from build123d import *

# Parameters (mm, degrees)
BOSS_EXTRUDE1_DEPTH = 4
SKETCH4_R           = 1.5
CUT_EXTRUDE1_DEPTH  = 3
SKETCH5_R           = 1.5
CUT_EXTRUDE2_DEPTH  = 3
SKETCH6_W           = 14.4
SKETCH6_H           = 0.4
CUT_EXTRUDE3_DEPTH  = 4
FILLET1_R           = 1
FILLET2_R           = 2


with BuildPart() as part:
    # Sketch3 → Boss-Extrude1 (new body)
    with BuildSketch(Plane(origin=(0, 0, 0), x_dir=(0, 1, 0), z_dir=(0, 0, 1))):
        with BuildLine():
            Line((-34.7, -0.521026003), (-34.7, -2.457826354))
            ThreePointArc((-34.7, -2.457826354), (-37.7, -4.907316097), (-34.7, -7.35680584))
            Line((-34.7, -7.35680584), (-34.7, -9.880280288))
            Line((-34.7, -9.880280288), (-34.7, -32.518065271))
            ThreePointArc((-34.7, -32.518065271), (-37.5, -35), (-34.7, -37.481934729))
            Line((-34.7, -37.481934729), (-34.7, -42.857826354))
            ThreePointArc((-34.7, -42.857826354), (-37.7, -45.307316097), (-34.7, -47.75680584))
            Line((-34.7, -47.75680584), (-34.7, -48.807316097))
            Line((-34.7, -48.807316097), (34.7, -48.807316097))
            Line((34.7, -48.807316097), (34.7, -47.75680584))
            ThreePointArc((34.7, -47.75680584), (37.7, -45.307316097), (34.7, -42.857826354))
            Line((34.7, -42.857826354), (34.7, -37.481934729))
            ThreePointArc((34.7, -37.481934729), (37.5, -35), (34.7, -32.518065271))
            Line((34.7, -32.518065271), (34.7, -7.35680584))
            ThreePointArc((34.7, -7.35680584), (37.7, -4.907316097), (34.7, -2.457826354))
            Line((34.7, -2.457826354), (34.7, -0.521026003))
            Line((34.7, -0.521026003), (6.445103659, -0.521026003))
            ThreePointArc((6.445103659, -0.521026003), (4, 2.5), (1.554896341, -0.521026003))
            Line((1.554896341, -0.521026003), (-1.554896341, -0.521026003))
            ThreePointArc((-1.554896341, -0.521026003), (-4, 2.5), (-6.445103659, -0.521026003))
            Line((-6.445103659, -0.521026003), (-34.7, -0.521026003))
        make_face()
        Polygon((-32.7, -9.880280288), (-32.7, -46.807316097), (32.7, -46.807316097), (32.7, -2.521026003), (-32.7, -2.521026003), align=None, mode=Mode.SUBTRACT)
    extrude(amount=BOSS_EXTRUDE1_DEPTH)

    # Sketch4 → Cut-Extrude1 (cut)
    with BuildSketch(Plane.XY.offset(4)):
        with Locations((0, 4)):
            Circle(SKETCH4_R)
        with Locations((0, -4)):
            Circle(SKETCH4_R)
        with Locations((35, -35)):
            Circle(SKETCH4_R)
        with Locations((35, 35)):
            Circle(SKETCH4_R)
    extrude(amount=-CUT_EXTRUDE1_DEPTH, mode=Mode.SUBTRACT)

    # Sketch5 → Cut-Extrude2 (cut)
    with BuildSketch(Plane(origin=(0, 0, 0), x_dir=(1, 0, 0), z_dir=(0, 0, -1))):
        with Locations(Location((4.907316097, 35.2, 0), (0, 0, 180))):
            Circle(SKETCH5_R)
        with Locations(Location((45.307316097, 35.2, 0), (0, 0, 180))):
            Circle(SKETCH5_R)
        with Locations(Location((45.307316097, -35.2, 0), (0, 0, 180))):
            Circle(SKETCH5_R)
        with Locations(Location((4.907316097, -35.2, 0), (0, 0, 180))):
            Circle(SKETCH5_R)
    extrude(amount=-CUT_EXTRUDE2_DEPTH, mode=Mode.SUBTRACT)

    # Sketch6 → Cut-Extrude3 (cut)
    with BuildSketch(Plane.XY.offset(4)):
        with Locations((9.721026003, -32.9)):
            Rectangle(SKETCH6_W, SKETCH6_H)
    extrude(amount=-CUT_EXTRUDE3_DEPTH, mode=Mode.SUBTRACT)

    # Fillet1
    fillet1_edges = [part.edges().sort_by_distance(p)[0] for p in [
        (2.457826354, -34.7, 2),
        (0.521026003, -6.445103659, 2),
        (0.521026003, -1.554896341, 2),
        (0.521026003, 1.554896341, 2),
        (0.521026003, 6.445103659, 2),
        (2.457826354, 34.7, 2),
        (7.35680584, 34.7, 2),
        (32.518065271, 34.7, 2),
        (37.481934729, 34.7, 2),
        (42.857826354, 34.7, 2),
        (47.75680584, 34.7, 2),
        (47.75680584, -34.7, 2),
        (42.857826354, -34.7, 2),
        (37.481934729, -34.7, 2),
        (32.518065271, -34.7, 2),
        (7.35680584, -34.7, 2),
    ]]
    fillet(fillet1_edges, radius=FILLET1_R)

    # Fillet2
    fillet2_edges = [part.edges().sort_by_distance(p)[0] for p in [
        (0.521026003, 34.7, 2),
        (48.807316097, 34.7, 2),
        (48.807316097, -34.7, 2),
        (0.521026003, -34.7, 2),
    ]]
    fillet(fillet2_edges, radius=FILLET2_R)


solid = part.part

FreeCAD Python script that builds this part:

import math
import FreeCAD as App
import Part
import Sketcher
Q = App.Units.Quantity


def edges_at(feature, points):
    """Names of the edges that pass closest to the given points."""
    edges = feature.Shape.Edges
    near = lambda p: min(range(len(edges)), key=lambda i: edges[i].distToShape(Part.Vertex(*p))[0])
    return sorted({f"Edge{near(p) + 1}" for p in points})


def add_polygon(sketch, points):
    """Adds a closed chain of lines whose ends are joined by coincident constraints."""
    first, n = sketch.GeometryCount, len(points)
    for a, b in zip(points, points[1:] + points[:1]):
        sketch.addGeometry(Part.LineSegment(App.Vector(*a, 0), App.Vector(*b, 0)), False)
    for i in range(n):
        sketch.addConstraint(Sketcher.Constraint("Coincident", first + i, 2, first + (i + 1) % n, 1))

doc = App.newDocument("Part")
body = doc.addObject("PartDesign::Body", "Body")

sketch1 = doc.addObject("Sketcher::SketchObject", "Sketch")
body.addObject(sketch1)
sketch1.AttachmentSupport = (doc.XY_Plane, [""])
sketch1.MapMode = "FlatFace"
sketch1.addGeometry(Part.LineSegment(App.Vector(0.5, -34.7, 0), App.Vector(2.5, -34.7, 0)), False)
sketch1.addGeometry(Part.ArcOfCircle(Part.Circle(App.Vector(4.9, -35.2, 0), App.Vector(0, 0, 1), 2.5), math.radians(168), math.radians(372)), False)
sketch1.addGeometry(Part.LineSegment(App.Vector(7.4, -34.7, 0), App.Vector(32.5, -34.7, 0)), False)
sketch1.addGeometry(Part.ArcOfCircle(Part.Circle(App.Vector(35, -35, 0), App.Vector(0, 0, 1), 2.5), math.radians(173), math.radians(367)), False)
sketch1.addGeometry(Part.LineSegment(App.Vector(37.5, -34.7, 0), App.Vector(42.9, -34.7, 0)), False)
sketch1.addGeometry(Part.ArcOfCircle(Part.Circle(App.Vector(45.3, -35.2, 0), App.Vector(0, 0, 1), 2.5), math.radians(168), math.radians(372)), False)
sketch1.addGeometry(Part.LineSegment(App.Vector(47.8, -34.7, 0), App.Vector(48.8, -34.7, 0)), False)
sketch1.addGeometry(Part.LineSegment(App.Vector(48.8, -34.7, 0), App.Vector(48.8, 34.7, 0)), False)
sketch1.addGeometry(Part.LineSegment(App.Vector(48.8, 34.7, 0), App.Vector(47.8, 34.7, 0)), False)
sketch1.addGeometry(Part.ArcOfCircle(Part.Circle(App.Vector(45.3, 35.2, 0), App.Vector(0, 0, 1), 2.5), math.radians(-12), math.radians(192)), False)
sketch1.addGeometry(Part.LineSegment(App.Vector(42.9, 34.7, 0), App.Vector(37.5, 34.7, 0)), False)
sketch1.addGeometry(Part.ArcOfCircle(Part.Circle(App.Vector(35, 35, 0), App.Vector(0, 0, 1), 2.5), math.radians(-7), math.radians(187)), False)
sketch1.addGeometry(Part.LineSegment(App.Vector(32.5, 34.7, 0), App.Vector(7.4, 34.7, 0)), False)
sketch1.addGeometry(Part.ArcOfCircle(Part.Circle(App.Vector(4.9, 35.2, 0), App.Vector(0, 0, 1), 2.5), math.radians(-12), math.radians(192)), False)
sketch1.addGeometry(Part.LineSegment(App.Vector(2.5, 34.7, 0), App.Vector(0.5, 34.7, 0)), False)
sketch1.addGeometry(Part.LineSegment(App.Vector(0.5, 34.7, 0), App.Vector(0.5, 6.4, 0)), False)
sketch1.addGeometry(Part.ArcOfCircle(Part.Circle(App.Vector(0, 4, 0), App.Vector(0, 0, 1), 2.5), math.radians(78), math.radians(282)), False)
sketch1.addGeometry(Part.LineSegment(App.Vector(0.5, 1.6, 0), App.Vector(0.5, -1.6, 0)), False)
sketch1.addGeometry(Part.ArcOfCircle(Part.Circle(App.Vector(0, -4, 0), App.Vector(0, 0, 1), 2.5), math.radians(78), math.radians(282)), False)
sketch1.addGeometry(Part.LineSegment(App.Vector(0.5, -6.4, 0), App.Vector(0.5, -34.7, 0)), False)
add_polygon(sketch1, [(46.8, -32.7), (2.5, -32.7), (2.5, 32.7), (46.8, 32.7)])
sketch1.addConstraint([
    Sketcher.Constraint("Coincident", 0, 2, 1, 1),
    Sketcher.Constraint("Coincident", 1, 2, 2, 1),
    Sketcher.Constraint("Coincident", 2, 2, 3, 1),
    Sketcher.Constraint("Coincident", 3, 2, 4, 1),
    Sketcher.Constraint("Coincident", 4, 2, 5, 1),
    Sketcher.Constraint("Coincident", 5, 2, 6, 1),
    Sketcher.Constraint("Coincident", 6, 2, 7, 1),
    Sketcher.Constraint("Coincident", 7, 2, 8, 1),
    Sketcher.Constraint("Coincident", 8, 2, 9, 1),
    Sketcher.Constraint("Coincident", 9, 2, 10, 1),
    Sketcher.Constraint("Coincident", 10, 2, 11, 1),
    Sketcher.Constraint("Coincident", 11, 2, 12, 1),
    Sketcher.Constraint("Coincident", 12, 2, 13, 1),
    Sketcher.Constraint("Coincident", 13, 2, 14, 1),
    Sketcher.Constraint("Coincident", 14, 2, 15, 1),
    Sketcher.Constraint("Coincident", 15, 2, 16, 1),
    Sketcher.Constraint("Coincident", 16, 2, 17, 1),
    Sketcher.Constraint("Coincident", 17, 2, 18, 1),
    Sketcher.Constraint("Coincident", 18, 2, 19, 1),
    Sketcher.Constraint("Coincident", 19, 2, 0, 1),
    Sketcher.Constraint("Horizontal", 0),
    Sketcher.Constraint("Horizontal", 2),
    Sketcher.Constraint("Horizontal", 4),
    Sketcher.Constraint("Horizontal", 6),
    Sketcher.Constraint("Vertical", 7),
    Sketcher.Constraint("Horizontal", 8),
    Sketcher.Constraint("Horizontal", 10),
    Sketcher.Constraint("Horizontal", 12),
    Sketcher.Constraint("Horizontal", 14),
    Sketcher.Constraint("Vertical", 15),
    Sketcher.Constraint("Vertical", 17),
    Sketcher.Constraint("Vertical", 19),
    Sketcher.Constraint("Horizontal", 20),
    Sketcher.Constraint("Vertical", 21),
    Sketcher.Constraint("Horizontal", 22),
    Sketcher.Constraint("Vertical", 23),
    Sketcher.Constraint("Equal", 1, 3),
    Sketcher.Constraint("Equal", 3, 5),
    Sketcher.Constraint("Equal", 5, 9),
    Sketcher.Constraint("Equal", 9, 11),
    Sketcher.Constraint("Equal", 11, 13),
    Sketcher.Constraint("Equal", 13, 16),
    Sketcher.Constraint("Equal", 16, 18),
    Sketcher.Constraint("Symmetric", 16, 3, 18, 3, -1, 1),
    Sketcher.Constraint("Symmetric", 5, 3, 9, 3, -1),
    Sketcher.Constraint("Symmetric", 3, 3, 11, 3, -1),
    Sketcher.Constraint("Symmetric", 1, 3, 13, 3, -1),
    Sketcher.Constraint("Symmetric", 15, 2, 18, 2, -1),
    Sketcher.Constraint("Horizontal", 1, 3, 5, 3),
    Sketcher.Constraint("Horizontal", 0, 2, 1, 2),
    Sketcher.Constraint("Horizontal", 2, 2, 3, 2),
    Sketcher.Constraint("Horizontal", 4, 2, 5, 2),
    Sketcher.Constraint("Horizontal", 8, 2, 9, 2),
    Sketcher.Constraint("Horizontal", 10, 2, 11, 2),
    Sketcher.Constraint("Horizontal", 12, 2, 13, 2),
    Sketcher.Constraint("Vertical", 5, 2, 8, 2),
    Sketcher.Constraint("Vertical", 15, 2, 16, 2),
    Sketcher.Constraint("Radius", 1, Q("2.5 mm")),
    Sketcher.Constraint("DistanceY", 7, 1, 7, 2, Q("69.4 mm")),
    Sketcher.Constraint("DistanceY", 21, 1, 21, 2, Q("65.4 mm")),
    Sketcher.Constraint("DistanceX", -1, 1, 3, 3, Q("35 mm")),
    Sketcher.Constraint("DistanceY", 3, 3, -1, 1, Q("35 mm")),
    Sketcher.Constraint("DistanceY", -1, 1, 16, 3, Q("4 mm")),
    Sketcher.Constraint("DistanceY", 0, 2, 20, 2, Q("2 mm")),
    Sketcher.Constraint("DistanceX", 19, 2, 20, 2, Q("2 mm")),
    Sketcher.Constraint("DistanceX", 22, 2, 7, 2, Q("2 mm")),
    Sketcher.Constraint("DistanceY", 1, 3, -1, 1, Q("35.2 mm")),
    Sketcher.Constraint("DistanceX", 1, 3, 5, 3, Q("40.4 mm")),
    Sketcher.Constraint("DistanceX", 5, 3, 6, 2, Q("3.5 mm")),
    Sketcher.Constraint("DistanceX", 0, 1, 0, 2, Q("1.9368 mm")),
    Sketcher.Constraint("DistanceX", 2, 1, 2, 2, Q("25.161259 mm")),
])
pad1 = doc.addObject("PartDesign::Pad", "Pad")
body.addObject(pad1)
pad1.Profile = sketch1
pad1.Length = 4

sketch2 = doc.addObject("Sketcher::SketchObject", "Sketch001")
body.addObject(sketch2)
sketch2.AttachmentSupport = (doc.XY_Plane, [""])
sketch2.MapMode = "FlatFace"
sketch2.AttachmentOffset = App.Placement(App.Vector(0, 0, 4), App.Rotation())
sketch2.addGeometry([
    Part.Circle(App.Vector(0, 4, 0), App.Vector(0, 0, 1), 1.5),
    Part.Circle(App.Vector(0, -4, 0), App.Vector(0, 0, 1), 1.5),
    Part.Circle(App.Vector(35, -35, 0), App.Vector(0, 0, 1), 1.5),
    Part.Circle(App.Vector(35, 35, 0), App.Vector(0, 0, 1), 1.5),
], False)
sketch2.addConstraint([
    Sketcher.Constraint("Equal", 0, 1),
    Sketcher.Constraint("Equal", 1, 2),
    Sketcher.Constraint("Equal", 2, 3),
    Sketcher.Constraint("Symmetric", 0, 3, 1, 3, -1, 1),
    Sketcher.Constraint("Symmetric", 2, 3, 3, 3, -1),
    Sketcher.Constraint("PointOnObject", 0, 3, -2),
    Sketcher.Constraint("Diameter", 0, Q("3 mm")),
    Sketcher.Constraint("DistanceY", -1, 1, 0, 3, Q("4 mm")),
    Sketcher.Constraint("DistanceX", -1, 1, 2, 3, Q("35 mm")),
    Sketcher.Constraint("DistanceY", 2, 3, -1, 1, Q("35 mm")),
])
pocket1 = doc.addObject("PartDesign::Pocket", "Pocket")
body.addObject(pocket1)
pocket1.Profile = sketch2
pocket1.Length = 3

sketch3 = doc.addObject("Sketcher::SketchObject", "Sketch002")
body.addObject(sketch3)
sketch3.AttachmentSupport = (doc.XY_Plane, [""])
sketch3.MapMode = "FlatFace"
sketch3.addGeometry([
    Part.Circle(App.Vector(4.9, -35.2, 0), App.Vector(0, 0, 1), 1.5),
    Part.Circle(App.Vector(45.3, -35.2, 0), App.Vector(0, 0, 1), 1.5),
    Part.Circle(App.Vector(45.3, 35.2, 0), App.Vector(0, 0, 1), 1.5),
    Part.Circle(App.Vector(4.9, 35.2, 0), App.Vector(0, 0, 1), 1.5),
], False)
sketch3.addConstraint([
    Sketcher.Constraint("Equal", 0, 1),
    Sketcher.Constraint("Equal", 1, 2),
    Sketcher.Constraint("Equal", 2, 3),
    Sketcher.Constraint("Symmetric", 1, 3, 2, 3, -1),
    Sketcher.Constraint("Symmetric", 0, 3, 3, 3, -1),
    Sketcher.Constraint("Horizontal", 0, 3, 1, 3),
    Sketcher.Constraint("Diameter", 0, Q("3 mm")),
    Sketcher.Constraint("DistanceY", 0, 3, -1, 1, Q("35.2 mm")),
    Sketcher.Constraint("DistanceX", 0, 3, 1, 3, Q("40.4 mm")),
    Sketcher.Constraint("DistanceX", -1, 1, 0, 3, Q("4.907316 mm")),
])
pocket2 = doc.addObject("PartDesign::Pocket", "Pocket001")
body.addObject(pocket2)
pocket2.Profile = sketch3
pocket2.Length = 3
pocket2.Reversed = True

sketch4 = doc.addObject("Sketcher::SketchObject", "Sketch003")
body.addObject(sketch4)
sketch4.AttachmentSupport = (doc.XY_Plane, [""])
sketch4.MapMode = "FlatFace"
sketch4.AttachmentOffset = App.Placement(App.Vector(0, 0, 4), App.Rotation())
add_polygon(sketch4, [(2.52, -32.7), (2.52, -33.1), (16.92, -33.1), (16.92, -32.7)])
sketch4.addConstraint([
    Sketcher.Constraint("Vertical", 0),
    Sketcher.Constraint("Horizontal", 1),
    Sketcher.Constraint("Vertical", 2),
    Sketcher.Constraint("Horizontal", 3),
    Sketcher.Constraint("DistanceX", 1, 1, 1, 2, Q("14.4 mm")),
    Sketcher.Constraint("DistanceY", 0, 2, 0, 1, Q("0.4 mm")),
    Sketcher.Constraint("DistanceY", 0, 2, -1, 1, Q("33.1 mm")),
    Sketcher.Constraint("DistanceX", -1, 1, 0, 2, Q("2.521026 mm")),
])
pocket3 = doc.addObject("PartDesign::Pocket", "Pocket002")
body.addObject(pocket3)
pocket3.Profile = sketch4
pocket3.Length = 4
doc.recompute()

fillet = doc.addObject("PartDesign::Fillet", "Fillet")
body.addObject(fillet)
fillet.Base = (pocket3, edges_at(pocket3, [
    (2.458, -34.7, 2),
    (0.521, -6.445, 2),
    (0.521, -1.555, 2),
    (0.521, 1.555, 2),
    (0.521, 6.445, 2),
    (2.458, 34.7, 2),
    (7.357, 34.7, 2),
    (32.518, 34.7, 2),
    (37.482, 34.7, 2),
    (42.858, 34.7, 2),
    (47.757, 34.7, 2),
    (47.757, -34.7, 2),
    (42.858, -34.7, 2),
    (37.482, -34.7, 2),
    (32.518, -34.7, 2),
    (7.357, -34.7, 2),
]))
fillet.Radius = 1
doc.recompute()

fillet2 = doc.addObject("PartDesign::Fillet", "Fillet001")
body.addObject(fillet2)
fillet2.Base = (fillet, edges_at(fillet, [
    (0.521, 34.7, 2),
    (48.807, 34.7, 2),
    (48.807, -34.7, 2),
    (0.521, -34.7, 2),
]))
fillet2.Radius = 2

doc.recompute()
